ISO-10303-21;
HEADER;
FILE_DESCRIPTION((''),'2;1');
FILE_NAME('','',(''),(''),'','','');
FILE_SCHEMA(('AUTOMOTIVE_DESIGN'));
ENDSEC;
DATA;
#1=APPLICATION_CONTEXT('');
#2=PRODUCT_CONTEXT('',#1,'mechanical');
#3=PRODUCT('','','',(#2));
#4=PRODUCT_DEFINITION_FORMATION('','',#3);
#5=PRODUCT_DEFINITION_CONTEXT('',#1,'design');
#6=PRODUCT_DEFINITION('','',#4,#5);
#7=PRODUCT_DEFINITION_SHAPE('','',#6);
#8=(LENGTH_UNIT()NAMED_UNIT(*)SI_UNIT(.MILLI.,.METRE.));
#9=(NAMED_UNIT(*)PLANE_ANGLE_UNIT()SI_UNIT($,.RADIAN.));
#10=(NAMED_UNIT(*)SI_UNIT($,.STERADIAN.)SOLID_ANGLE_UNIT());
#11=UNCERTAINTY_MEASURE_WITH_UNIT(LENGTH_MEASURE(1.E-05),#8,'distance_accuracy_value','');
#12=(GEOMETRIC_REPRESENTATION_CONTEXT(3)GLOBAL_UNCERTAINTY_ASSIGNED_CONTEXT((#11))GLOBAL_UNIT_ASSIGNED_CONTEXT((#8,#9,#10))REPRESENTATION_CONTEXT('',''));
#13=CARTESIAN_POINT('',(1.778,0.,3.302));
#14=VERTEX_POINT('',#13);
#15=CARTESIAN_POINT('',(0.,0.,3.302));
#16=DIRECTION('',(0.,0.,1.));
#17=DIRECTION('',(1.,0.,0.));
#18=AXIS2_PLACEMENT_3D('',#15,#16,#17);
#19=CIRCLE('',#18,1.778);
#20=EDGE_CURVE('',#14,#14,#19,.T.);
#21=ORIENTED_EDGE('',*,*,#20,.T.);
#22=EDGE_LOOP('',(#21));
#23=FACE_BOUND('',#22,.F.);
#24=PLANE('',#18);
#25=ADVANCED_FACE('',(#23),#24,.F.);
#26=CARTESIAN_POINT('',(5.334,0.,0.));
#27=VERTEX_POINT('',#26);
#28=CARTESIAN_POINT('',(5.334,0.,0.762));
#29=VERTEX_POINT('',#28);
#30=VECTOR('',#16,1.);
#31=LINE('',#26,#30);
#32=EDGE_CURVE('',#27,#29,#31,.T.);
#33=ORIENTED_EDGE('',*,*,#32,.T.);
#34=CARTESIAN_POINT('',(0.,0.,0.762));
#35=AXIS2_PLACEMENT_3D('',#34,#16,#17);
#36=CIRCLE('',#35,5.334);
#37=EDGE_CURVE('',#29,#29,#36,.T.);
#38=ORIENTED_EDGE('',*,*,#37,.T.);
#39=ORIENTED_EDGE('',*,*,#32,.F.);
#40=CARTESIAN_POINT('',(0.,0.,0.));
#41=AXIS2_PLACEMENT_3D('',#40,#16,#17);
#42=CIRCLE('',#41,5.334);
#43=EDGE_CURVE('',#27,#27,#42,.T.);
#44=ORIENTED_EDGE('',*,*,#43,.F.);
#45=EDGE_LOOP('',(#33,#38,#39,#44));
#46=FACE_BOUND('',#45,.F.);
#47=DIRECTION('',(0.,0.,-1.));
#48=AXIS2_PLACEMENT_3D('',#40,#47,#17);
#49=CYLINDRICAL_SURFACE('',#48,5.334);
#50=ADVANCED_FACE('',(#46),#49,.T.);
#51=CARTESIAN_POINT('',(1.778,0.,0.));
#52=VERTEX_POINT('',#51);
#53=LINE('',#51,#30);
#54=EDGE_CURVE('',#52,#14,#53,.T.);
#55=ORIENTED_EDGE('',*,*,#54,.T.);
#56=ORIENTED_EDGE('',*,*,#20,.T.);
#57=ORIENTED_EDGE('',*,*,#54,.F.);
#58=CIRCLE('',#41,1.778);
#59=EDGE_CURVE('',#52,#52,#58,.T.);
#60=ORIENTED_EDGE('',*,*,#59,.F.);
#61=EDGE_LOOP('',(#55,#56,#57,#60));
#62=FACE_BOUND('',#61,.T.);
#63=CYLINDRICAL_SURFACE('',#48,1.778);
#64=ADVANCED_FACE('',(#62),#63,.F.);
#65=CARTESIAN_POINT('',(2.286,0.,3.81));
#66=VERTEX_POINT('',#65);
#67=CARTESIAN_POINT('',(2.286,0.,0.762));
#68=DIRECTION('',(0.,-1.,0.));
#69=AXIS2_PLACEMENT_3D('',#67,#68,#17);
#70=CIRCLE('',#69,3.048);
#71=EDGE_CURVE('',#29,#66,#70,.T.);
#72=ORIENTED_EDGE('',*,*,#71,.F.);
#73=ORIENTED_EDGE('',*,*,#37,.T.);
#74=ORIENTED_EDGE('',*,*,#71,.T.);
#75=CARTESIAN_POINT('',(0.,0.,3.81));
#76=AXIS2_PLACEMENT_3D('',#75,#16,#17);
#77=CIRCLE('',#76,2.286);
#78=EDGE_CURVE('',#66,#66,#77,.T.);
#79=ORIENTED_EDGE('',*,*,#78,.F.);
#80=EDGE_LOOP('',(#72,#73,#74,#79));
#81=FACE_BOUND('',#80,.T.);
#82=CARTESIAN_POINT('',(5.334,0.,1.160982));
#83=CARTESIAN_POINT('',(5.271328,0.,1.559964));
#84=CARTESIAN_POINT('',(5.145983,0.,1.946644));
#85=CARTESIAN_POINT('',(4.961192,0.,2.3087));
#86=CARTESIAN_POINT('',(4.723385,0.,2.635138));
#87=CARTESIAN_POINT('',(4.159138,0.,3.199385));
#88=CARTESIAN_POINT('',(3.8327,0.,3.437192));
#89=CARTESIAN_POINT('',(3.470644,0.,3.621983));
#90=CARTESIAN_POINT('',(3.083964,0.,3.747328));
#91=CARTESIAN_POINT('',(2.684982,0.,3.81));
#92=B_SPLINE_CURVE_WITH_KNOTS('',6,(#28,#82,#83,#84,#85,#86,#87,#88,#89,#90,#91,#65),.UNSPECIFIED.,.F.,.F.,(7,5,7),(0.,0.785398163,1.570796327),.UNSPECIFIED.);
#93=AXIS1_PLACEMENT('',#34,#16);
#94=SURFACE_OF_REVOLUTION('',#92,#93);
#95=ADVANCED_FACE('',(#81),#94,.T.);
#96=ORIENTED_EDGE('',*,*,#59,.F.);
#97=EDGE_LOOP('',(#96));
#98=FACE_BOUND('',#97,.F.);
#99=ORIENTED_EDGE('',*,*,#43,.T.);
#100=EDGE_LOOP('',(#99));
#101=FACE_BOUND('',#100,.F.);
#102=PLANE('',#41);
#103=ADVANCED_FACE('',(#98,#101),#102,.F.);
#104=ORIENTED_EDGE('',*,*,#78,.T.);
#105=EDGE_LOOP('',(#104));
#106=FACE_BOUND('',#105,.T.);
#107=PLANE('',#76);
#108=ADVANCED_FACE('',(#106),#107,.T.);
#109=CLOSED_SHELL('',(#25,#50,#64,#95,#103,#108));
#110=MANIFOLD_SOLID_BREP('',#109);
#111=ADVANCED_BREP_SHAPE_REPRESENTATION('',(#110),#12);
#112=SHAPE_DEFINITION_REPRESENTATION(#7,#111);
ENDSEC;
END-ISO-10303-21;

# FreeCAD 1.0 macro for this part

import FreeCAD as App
import Part
import Sketcher

V = App.Vector
Q = App.Units.Quantity


def edges_at(feature, points):
    """Names of the edges that pass closest to the given points."""
    edges = feature.Shape.Edges
    near = lambda p: min(range(len(edges)), key=lambda i: edges[i].distToShape(Part.Vertex(*p))[0])
    return sorted({f"Edge{near(p) + 1}" for p in points})

doc = App.newDocument("Part")
params = doc.addObject("Spreadsheet::Sheet", "Params")
for row, (alias, value) in enumerate([
    ("sketch1_diameter", "0.42 in"),
    ("pad1_length", "0.15 in"),
    ("fillet_radius", "0.12 in"),
    ("sketch2_diameter", "0.14 in"),
    ("pocket1_length", "0.13 in"),
], start=1):
    params.set(f"A{row}", alias)
    params.set(f"B{row}", "=" + value)
    params.setAlias(f"B{row}", alias)

body = doc.addObject("PartDesign::Body", "Body")

sketch1 = doc.addObject("Sketcher::SketchObject", "Sketch")
body.addObject(sketch1)
sketch1.AttachmentSupport = (doc.XY_Plane, [""])
sketch1.MapMode = "FlatFace"
sketch1.addGeometry(Part.Circle(V(0, 0, 0), V(0, 0, 1), 5), False)
sketch1.addConstraint(Sketcher.Constraint("Coincident", 0, 3, -1, 1))
sketch1.addConstraint(Sketcher.Constraint("Diameter", 0, Q("0.42 in")))
sketch1.setExpression("Constraints[1]", "Params.sketch1_diameter")
pad1 = doc.addObject("PartDesign::Pad", "Pad")
body.addObject(pad1)
pad1.Profile = sketch1
pad1.setExpression("Length", "Params.pad1_length")
doc.recompute()

fillet = doc.addObject("PartDesign::Fillet", "Fillet")
body.addObject(fillet)
fillet.Base = (pad1, edges_at(pad1, [(-5.334, 0, 3.81)]))
fillet.setExpression("Radius", "Params.fillet_radius")

sketch2 = doc.addObject("Sketcher::SketchObject", "Sketch001")
body.addObject(sketch2)
sketch2.AttachmentSupport = (doc.XY_Plane, [""])
sketch2.MapMode = "FlatFace"
sketch2.addGeometry(Part.Circle(V(0, 0, 0), V(0, 0, 1), 1.8), False)
sketch2.addConstraint(Sketcher.Constraint("Coincident", 0, 3, -1, 1))
sketch2.addConstraint(Sketcher.Constraint("Diameter", 0, Q("0.14 in")))
sketch2.setExpression("Constraints[1]", "Params.sketch2_diameter")
pocket1 = doc.addObject("PartDesign::Pocket", "Pocket")
body.addObject(pocket1)
pocket1.Profile = sketch2
pocket1.setExpression("Length", "Params.pocket1_length")
pocket1.Reversed = True

doc.recompute()
